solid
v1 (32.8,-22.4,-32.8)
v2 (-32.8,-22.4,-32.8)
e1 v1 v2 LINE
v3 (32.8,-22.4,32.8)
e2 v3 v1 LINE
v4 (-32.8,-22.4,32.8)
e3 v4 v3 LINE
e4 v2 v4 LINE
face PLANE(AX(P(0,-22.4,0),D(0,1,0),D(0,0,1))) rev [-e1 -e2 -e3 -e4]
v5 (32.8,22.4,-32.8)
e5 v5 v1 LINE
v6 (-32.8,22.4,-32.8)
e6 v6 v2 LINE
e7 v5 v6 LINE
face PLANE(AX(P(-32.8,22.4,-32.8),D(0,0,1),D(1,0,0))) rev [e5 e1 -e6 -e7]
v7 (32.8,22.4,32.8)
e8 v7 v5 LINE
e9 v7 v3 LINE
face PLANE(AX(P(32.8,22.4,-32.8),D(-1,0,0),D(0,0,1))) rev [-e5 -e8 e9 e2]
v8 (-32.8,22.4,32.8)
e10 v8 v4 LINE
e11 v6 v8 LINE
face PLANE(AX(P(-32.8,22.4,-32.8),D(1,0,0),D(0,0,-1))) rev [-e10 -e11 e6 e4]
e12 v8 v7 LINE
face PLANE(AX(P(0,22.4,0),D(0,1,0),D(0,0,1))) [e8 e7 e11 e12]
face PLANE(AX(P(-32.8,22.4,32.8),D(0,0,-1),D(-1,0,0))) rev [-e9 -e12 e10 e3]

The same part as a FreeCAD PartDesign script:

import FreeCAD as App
import Part
import Sketcher
from FreeCAD import Vector

doc = App.newDocument("Part")
body = doc.addObject("PartDesign::Body", "Body")

sketch1 = body.newObject("Sketcher::SketchObject", "Sketch")
sketch1.AttachmentSupport = (doc.getObject("XZ_Plane"), [""])
sketch1.MapMode = "FlatFace"
sketch1.addGeometry([
    Part.LineSegment(Vector(-32.8, -32.8, 0), Vector(-32.8, 32.8, 0)),
    Part.LineSegment(Vector(-32.8, 32.8, 0), Vector(32.8, 32.8, 0)),
    Part.LineSegment(Vector(32.8, 32.8, 0), Vector(32.8, -32.8, 0)),
    Part.LineSegment(Vector(32.8, -32.8, 0), Vector(-32.8, -32.8, 0)),
], False)
sketch1.addConstraint([
    Sketcher.Constraint("Coincident", 0, 2, 1, 1),
    Sketcher.Constraint("Coincident", 1, 2, 2, 1),
    Sketcher.Constraint("Coincident", 2, 2, 3, 1),
    Sketcher.Constraint("Coincident", 3, 2, 0, 1),
    Sketcher.Constraint("Vertical", 0),
    Sketcher.Constraint("Horizontal", 1),
    Sketcher.Constraint("Vertical", 2),
    Sketcher.Constraint("Horizontal", 3),
    Sketcher.Constraint("Symmetric", 0, 2, 2, 2, -1, 1),
    Sketcher.Constraint("Equal", 3, 0),
    Sketcher.Constraint("DistanceX", 1, 1, 1, 2, 65.6),
])
pad1 = body.newObject("PartDesign::Pad", "Pad")
pad1.Profile = sketch1
pad1.Length = 44.8
pad1.Midplane = True

doc.recompute()
